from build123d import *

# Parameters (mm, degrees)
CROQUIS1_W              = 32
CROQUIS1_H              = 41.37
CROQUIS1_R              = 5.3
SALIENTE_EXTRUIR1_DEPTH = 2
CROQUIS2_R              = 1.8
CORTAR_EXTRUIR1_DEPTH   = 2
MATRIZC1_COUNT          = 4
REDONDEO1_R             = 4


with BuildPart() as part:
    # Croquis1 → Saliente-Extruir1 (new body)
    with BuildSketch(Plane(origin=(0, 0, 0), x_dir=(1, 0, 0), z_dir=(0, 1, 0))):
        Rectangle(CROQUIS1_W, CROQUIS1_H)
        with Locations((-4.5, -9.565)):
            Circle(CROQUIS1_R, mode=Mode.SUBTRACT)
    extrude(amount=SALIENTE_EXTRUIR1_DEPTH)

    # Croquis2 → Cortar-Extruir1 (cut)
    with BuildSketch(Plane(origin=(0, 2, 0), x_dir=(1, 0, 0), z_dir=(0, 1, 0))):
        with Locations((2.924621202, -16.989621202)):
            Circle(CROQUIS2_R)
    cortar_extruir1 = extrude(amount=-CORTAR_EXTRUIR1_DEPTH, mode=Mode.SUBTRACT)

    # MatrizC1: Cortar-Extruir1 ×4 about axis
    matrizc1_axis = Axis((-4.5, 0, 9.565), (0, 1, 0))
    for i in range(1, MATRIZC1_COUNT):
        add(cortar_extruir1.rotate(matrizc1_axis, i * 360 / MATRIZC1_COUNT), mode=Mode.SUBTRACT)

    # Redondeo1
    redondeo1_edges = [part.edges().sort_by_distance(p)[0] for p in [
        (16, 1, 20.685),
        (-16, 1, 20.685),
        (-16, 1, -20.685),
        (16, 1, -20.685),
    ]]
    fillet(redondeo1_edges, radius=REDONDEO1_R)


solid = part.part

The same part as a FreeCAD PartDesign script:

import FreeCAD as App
import Part
import Sketcher
Q = App.Units.Quantity


def edges_at(feature, points):
    """Names of the edges that pass closest to the given points."""
    edges = feature.Shape.Edges
    near = lambda p: min(range(len(edges)), key=lambda i: edges[i].distToShape(Part.Vertex(*p))[0])
    return sorted({f"Edge{near(p) + 1}" for p in points})

doc = App.newDocument("Part")
params = doc.addObject("Spreadsheet::Sheet", "Params")
for row, (alias, value) in enumerate([
    ("sketch1_diameter", "10.6 mm"),
    ("sketch1_width", "32 mm"),
    ("sketch1_height", "41.37 mm"),
    ("pad1_length", "2 mm"),
    ("sketch2_diameter", "3.6 mm"),
    ("pocket1_length", "2 mm"),
    ("fillet_radius", "4 mm"),
], start=1):
    params.set(f"A{row}", alias)
    params.set(f"B{row}", "=" + value)
    params.setAlias(f"B{row}", alias)

body = doc.addObject("PartDesign::Body", "Body")

sketch1 = body.newObject("Sketcher::SketchObject", "Sketch")
sketch1.AttachmentSupport = (doc.getObject("XZ_Plane"), [""])
sketch1.MapMode = "FlatFace"
sketch1.addGeometry([
    Part.LineSegment(App.Vector(-16, -21, 0), App.Vector(-16, 21, 0)),
    Part.LineSegment(App.Vector(-16, 21, 0), App.Vector(16, 21, 0)),
    Part.LineSegment(App.Vector(16, 21, 0), App.Vector(16, -21, 0)),
    Part.LineSegment(App.Vector(16, -21, 0), App.Vector(-16, -21, 0)),
    Part.Circle(App.Vector(-4, 10, 0), App.Vector(0, 0, 1), 5),
], False)
sketch1.addConstraint([
    Sketcher.Constraint("Coincident", 0, 2, 1, 1),
    Sketcher.Constraint("Coincident", 1, 2, 2, 1),
    Sketcher.Constraint("Coincident", 2, 2, 3, 1),
    Sketcher.Constraint("Coincident", 3, 2, 0, 1),
    Sketcher.Constraint("Vertical", 0),
    Sketcher.Constraint("Horizontal", 1),
    Sketcher.Constraint("Vertical", 2),
    Sketcher.Constraint("Horizontal", 3),
    Sketcher.Constraint("Symmetric", 0, 2, 2, 2, -1, 1),
    Sketcher.Constraint("Diameter", 4, Q("10.6 mm")),
    Sketcher.Constraint("DistanceX", 1, 1, 1, 2, Q("32 mm")),
    Sketcher.Constraint("DistanceY", 0, 1, 0, 2, Q("41.37 mm")),
    Sketcher.Constraint("DistanceX", 4, 3, -1, 1, Q("4.5 mm")),
    Sketcher.Constraint("DistanceY", 4, 3, 0, 2, Q("11.12 mm")),
])
sketch1.setExpression("Constraints[9]", "Params.sketch1_diameter")
sketch1.setExpression("Constraints[10]", "Params.sketch1_width")
sketch1.setExpression("Constraints[11]", "Params.sketch1_height")
pad1 = body.newObject("PartDesign::Pad", "Pad")
pad1.Profile = sketch1
pad1.setExpression("Length", "Params.pad1_length")
pad1.Reversed = True

sketch2 = body.newObject("Sketcher::SketchObject", "Sketch001")
sketch2.AttachmentSupport = (doc.getObject("XZ_Plane"), [""])
sketch2.MapMode = "FlatFace"
sketch2.AttachmentOffset = App.Placement(App.Vector(0, 0, -2), App.Rotation())
sketch2.addGeometry(Part.Circle(App.Vector(2.9, 17, 0), App.Vector(0, 0, 1), 1.8), False)
sketch2.addConstraint([
    Sketcher.Constraint("Diameter", 0, Q("3.6 mm")),
    Sketcher.Constraint("DistanceX", -1, 1, 0, 3, Q("2.924621 mm")),
    Sketcher.Constraint("DistanceY", -1, 1, 0, 3, Q("16.989621 mm")),
])
sketch2.setExpression("Constraints[0]", "Params.sketch2_diameter")
pocket1 = body.newObject("PartDesign::Pocket", "Pocket")
pocket1.Profile = sketch2
pocket1.setExpression("Length", "Params.pocket1_length")
pocket1.Reversed = True
doc.recompute()

datumline = body.newObject("PartDesign::Line", "DatumLine")
datumline.Placement = App.Placement(App.Vector(-4.5, 0, 9.565), App.Rotation(App.Vector(0, 0, 1), App.Vector(0, 1, 0)))
polarpattern = body.newObject("PartDesign::PolarPattern", "PolarPattern")
polarpattern.Originals = [pocket1]
polarpattern.Axis = (datumline, [""])
polarpattern.Angle = 360
polarpattern.Occurrences = 4
body.Tip = polarpattern
doc.recompute()

fillet = body.newObject("PartDesign::Fillet", "Fillet")
fillet.Base = (polarpattern, edges_at(polarpattern, [
    (16, 1, 20.685),
    (-16, 1, 20.685),
    (-16, 1, -20.685),
    (16, 1, -20.685),
]))
fillet.setExpression("Radius", "Params.fillet_radius")

doc.recompute()
